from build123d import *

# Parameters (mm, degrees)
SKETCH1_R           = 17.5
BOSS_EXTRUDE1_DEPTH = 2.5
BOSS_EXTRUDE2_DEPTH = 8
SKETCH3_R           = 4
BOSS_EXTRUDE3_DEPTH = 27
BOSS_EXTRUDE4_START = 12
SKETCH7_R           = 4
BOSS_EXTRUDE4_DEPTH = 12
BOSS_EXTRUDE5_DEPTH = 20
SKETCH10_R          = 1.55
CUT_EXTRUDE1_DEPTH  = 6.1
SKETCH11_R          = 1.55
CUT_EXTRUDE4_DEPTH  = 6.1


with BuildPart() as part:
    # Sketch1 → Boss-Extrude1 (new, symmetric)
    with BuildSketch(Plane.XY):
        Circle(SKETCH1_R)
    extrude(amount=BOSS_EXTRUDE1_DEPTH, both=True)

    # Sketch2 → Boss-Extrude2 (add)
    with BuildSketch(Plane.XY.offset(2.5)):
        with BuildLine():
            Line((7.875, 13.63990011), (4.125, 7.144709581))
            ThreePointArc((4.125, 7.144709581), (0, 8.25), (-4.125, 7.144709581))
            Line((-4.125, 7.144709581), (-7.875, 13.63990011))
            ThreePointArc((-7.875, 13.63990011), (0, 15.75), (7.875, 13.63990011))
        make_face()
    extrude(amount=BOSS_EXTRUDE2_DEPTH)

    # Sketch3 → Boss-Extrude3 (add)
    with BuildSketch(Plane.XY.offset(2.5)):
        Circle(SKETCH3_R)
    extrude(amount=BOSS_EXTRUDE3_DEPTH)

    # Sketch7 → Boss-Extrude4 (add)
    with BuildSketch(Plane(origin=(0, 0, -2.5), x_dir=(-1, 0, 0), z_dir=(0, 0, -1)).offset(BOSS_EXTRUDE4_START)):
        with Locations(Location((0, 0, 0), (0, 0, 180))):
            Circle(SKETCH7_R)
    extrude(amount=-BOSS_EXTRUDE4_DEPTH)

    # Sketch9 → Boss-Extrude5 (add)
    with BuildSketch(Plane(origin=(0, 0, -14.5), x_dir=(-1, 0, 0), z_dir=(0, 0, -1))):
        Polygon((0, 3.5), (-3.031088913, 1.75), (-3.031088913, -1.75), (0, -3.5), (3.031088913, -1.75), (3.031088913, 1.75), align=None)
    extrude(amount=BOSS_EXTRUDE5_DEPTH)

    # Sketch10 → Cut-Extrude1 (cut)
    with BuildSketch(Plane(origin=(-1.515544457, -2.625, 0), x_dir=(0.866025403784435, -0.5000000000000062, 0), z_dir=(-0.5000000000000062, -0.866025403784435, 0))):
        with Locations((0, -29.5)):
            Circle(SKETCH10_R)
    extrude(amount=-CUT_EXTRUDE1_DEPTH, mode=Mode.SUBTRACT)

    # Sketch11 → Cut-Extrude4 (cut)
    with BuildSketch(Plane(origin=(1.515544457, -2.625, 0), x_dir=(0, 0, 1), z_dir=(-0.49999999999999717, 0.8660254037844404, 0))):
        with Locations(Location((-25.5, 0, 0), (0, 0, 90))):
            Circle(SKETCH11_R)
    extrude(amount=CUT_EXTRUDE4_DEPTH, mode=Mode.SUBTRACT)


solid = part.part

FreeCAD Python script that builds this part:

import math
import FreeCAD as App
import Part
import Sketcher
Q = App.Units.Quantity


def add_polygon(sketch, points):
    """Adds a closed chain of lines whose ends are joined by coincident constraints."""
    first, n = sketch.GeometryCount, len(points)
    for a, b in zip(points, points[1:] + points[:1]):
        sketch.addGeometry(Part.LineSegment(App.Vector(*a, 0), App.Vector(*b, 0)), False)
    for i in range(n):
        sketch.addConstraint(Sketcher.Constraint("Coincident", first + i, 2, first + (i + 1) % n, 1))

doc = App.newDocument("Part")
body = doc.addObject("PartDesign::Body", "Body")

# Sketch on XY plane
sketch1 = body.newObject("Sketcher::SketchObject", "Sketch")
sketch1.AttachmentSupport = (doc.getObject("XY_Plane"), [""])
sketch1.MapMode = "FlatFace"
sketch1.addGeometry(Part.Circle(App.Vector(0, 0, 0), App.Vector(0, 0, 1), 18), False)
sketch1.addConstraint(Sketcher.Constraint("Coincident", 0, 3, -1, 1))
sketch1.addConstraint(Sketcher.Constraint("Diameter", 0, Q("35 mm")))
pad1 = body.newObject("PartDesign::Pad", "Pad")
pad1.Profile = sketch1
pad1.Length = 5
pad1.Midplane = True

# Sketch on XY plane
sketch2 = body.newObject("Sketcher::SketchObject", "Sketch001")
sketch2.AttachmentSupport = (doc.getObject("XY_Plane"), [""])
sketch2.MapMode = "FlatFace"
sketch2.AttachmentOffset = App.Placement(App.Vector(0, 0, 2.5), App.Rotation())
sketch2.addGeometry(Part.LineSegment(App.Vector(4, 7, 0), App.Vector(8, 14, 0)), False)
sketch2.addGeometry(Part.ArcOfCircle(Part.Circle(App.Vector(0, 0, 0), App.Vector(0, 0, 1), 16), math.radians(60), math.radians(120)), False)
sketch2.addGeometry(Part.LineSegment(App.Vector(-8, 14, 0), App.Vector(-4, 7, 0)), False)
sketch2.addGeometry(Part.ArcOfCircle(Part.Circle(App.Vector(0, 0, 0), App.Vector(0, 0, 1), 8), math.radians(60), math.radians(120)), False)
sketch2.addConstraint(Sketcher.Constraint("Coincident", 0, 2, 1, 1))
sketch2.addConstraint(Sketcher.Constraint("Coincident", 1, 2, 2, 1))
sketch2.addConstraint(Sketcher.Constraint("Coincident", 2, 2, 3, 2))
sketch2.addConstraint(Sketcher.Constraint("Coincident", 3, 1, 0, 1))
sketch2.addConstraint(Sketcher.Constraint("Coincident", 1, 3, -1, 1))
sketch2.addConstraint(Sketcher.Constraint("Coincident", 3, 3, -1, 1))
sketch2.addConstraint(Sketcher.Constraint("Horizontal", 0, 2, 1, 2))
sketch2.addConstraint(Sketcher.Constraint("Horizontal", 2, 2, 3, 1))
sketch2.addConstraint(Sketcher.Constraint("Angle", 0, Q("60 deg")))
sketch2.addConstraint(Sketcher.Constraint("Radius", 1, Q("15.75 mm")))
sketch2.addConstraint(Sketcher.Constraint("Radius", 3, Q("8.25 mm")))
sketch2.addConstraint(Sketcher.Constraint("DistanceX", 2, 2, 0, 2, Q("12 mm")))
pad2 = body.newObject("PartDesign::Pad", "Pad001")
pad2.Profile = sketch2
pad2.Length = 8

# Sketch on XY plane
sketch3 = body.newObject("Sketcher::SketchObject", "Sketch002")
sketch3.AttachmentSupport = (doc.getObject("XY_Plane"), [""])
sketch3.MapMode = "FlatFace"
sketch3.AttachmentOffset = App.Placement(App.Vector(0, 0, 2.5), App.Rotation())
sketch3.addGeometry(Part.Circle(App.Vector(0, 0, 0), App.Vector(0, 0, 1), 4), False)
sketch3.addConstraint(Sketcher.Constraint("Coincident", 0, 3, -1, 1))
sketch3.addConstraint(Sketcher.Constraint("Diameter", 0, Q("8 mm")))
pad3 = body.newObject("PartDesign::Pad", "Pad002")
pad3.Profile = sketch3
pad3.Length = 27

# Sketch on XY plane
sketch4 = body.newObject("Sketcher::SketchObject", "Sketch003")
sketch4.AttachmentSupport = (doc.getObject("XY_Plane"), [""])
sketch4.MapMode = "FlatFace"
sketch4.AttachmentOffset = App.Placement(App.Vector(0, 0, -14.5), App.Rotation())
sketch4.addGeometry(Part.Circle(App.Vector(0, 0, 0), App.Vector(0, 0, 1), 4), False)
sketch4.addConstraint(Sketcher.Constraint("Coincident", 0, 3, -1, 1))
sketch4.addConstraint(Sketcher.Constraint("Diameter", 0, Q("8 mm")))
pad4 = body.newObject("PartDesign::Pad", "Pad003")
pad4.Profile = sketch4
pad4.Length = 12

# Sketch on XY plane
sketch5 = body.newObject("Sketcher::SketchObject", "Sketch004")
sketch5.AttachmentSupport = (doc.getObject("XY_Plane"), [""])
sketch5.MapMode = "FlatFace"
sketch5.AttachmentOffset = App.Placement(App.Vector(0, 0, -14.5), App.Rotation())
add_polygon(sketch5, [(0, 3.5), (3, 1.8), (3, -1.8), (0, -3.5), (-3, -1.8), (-3, 1.8)])  # lines 0-5
sketch5.addConstraint(Sketcher.Constraint("Vertical", 1))
sketch5.addConstraint(Sketcher.Constraint("Vertical", 4))
sketch5.addConstraint(Sketcher.Constraint("Symmetric", 0, 2, 3, 2, -1, 1))
sketch5.addConstraint(Sketcher.Constraint("Symmetric", 2, 2, 5, 2, -1, 1))
sketch5.addConstraint(Sketcher.Constraint("PointOnObject", 2, 2, -2))
sketch5.addConstraint(Sketcher.Constraint("Parallel", 2, 5))
sketch5.addConstraint(Sketcher.Constraint("Horizontal", 1, 2, 3, 2))
sketch5.addConstraint(Sketcher.Constraint("Angle", 0, Q("-30 deg")))
sketch5.addConstraint(Sketcher.Constraint("DistanceY", 1, 2, 1, 1, Q("3.5 mm")))
sketch5.addConstraint(Sketcher.Constraint("DistanceY", 2, 2, 5, 2, Q("7 mm")))
pad5 = body.newObject("PartDesign::Pad", "Pad004")
pad5.Profile = sketch5
pad5.Length = 20
pad5.Reversed = True

# Sketch on an angled plane
sketch6 = body.newObject("Sketcher::SketchObject", "Sketch005")
sketch6.Placement = App.Placement(App.Vector(-1.515544, -2.625, 0), App.Rotation(App.Vector(0.866025404, -0.5, 0), App.Vector(0, 0, 1), App.Vector(-0.5, -0.866025404, 0), "ZXY"))
sketch6.addGeometry(Part.Circle(App.Vector(0, -29.5, 0), App.Vector(0, 0, 1), 1.6), False)
sketch6.addConstraint(Sketcher.Constraint("PointOnObject", 0, 3, -2))
sketch6.addConstraint(Sketcher.Constraint("Diameter", 0, Q("3.1 mm")))
sketch6.addConstraint(Sketcher.Constraint("DistanceY", 0, 3, -1, 1, Q("29.5 mm")))
pocket1 = body.newObject("PartDesign::Pocket", "Pocket")
pocket1.Profile = sketch6
pocket1.Length = 6.1

# Sketch on an angled plane
sketch7 = body.newObject("Sketcher::SketchObject", "Sketch006")
sketch7.Placement = App.Placement(App.Vector(1.515544, -2.625, 0), App.Rotation(App.Vector(0, 0, 1), App.Vector(0.866025404, 0.5, 0), App.Vector(-0.5, 0.866025404, 0), "ZXY"))
sketch7.addGeometry(Part.Circle(App.Vector(-25.5, 0, 0), App.Vector(0, 0, 1), 1.6), False)
sketch7.addConstraint(Sketcher.Constraint("PointOnObject", 0, 3, -1))
sketch7.addConstraint(Sketcher.Constraint("Diameter", 0, Q("3.1 mm")))
sketch7.addConstraint(Sketcher.Constraint("DistanceX", 0, 3, -1, 1, Q("25.5 mm")))
pocket2 = body.newObject("PartDesign::Pocket", "Pocket001")
pocket2.Profile = sketch7
pocket2.Length = 6.1
pocket2.Reversed = True

doc.recompute()
